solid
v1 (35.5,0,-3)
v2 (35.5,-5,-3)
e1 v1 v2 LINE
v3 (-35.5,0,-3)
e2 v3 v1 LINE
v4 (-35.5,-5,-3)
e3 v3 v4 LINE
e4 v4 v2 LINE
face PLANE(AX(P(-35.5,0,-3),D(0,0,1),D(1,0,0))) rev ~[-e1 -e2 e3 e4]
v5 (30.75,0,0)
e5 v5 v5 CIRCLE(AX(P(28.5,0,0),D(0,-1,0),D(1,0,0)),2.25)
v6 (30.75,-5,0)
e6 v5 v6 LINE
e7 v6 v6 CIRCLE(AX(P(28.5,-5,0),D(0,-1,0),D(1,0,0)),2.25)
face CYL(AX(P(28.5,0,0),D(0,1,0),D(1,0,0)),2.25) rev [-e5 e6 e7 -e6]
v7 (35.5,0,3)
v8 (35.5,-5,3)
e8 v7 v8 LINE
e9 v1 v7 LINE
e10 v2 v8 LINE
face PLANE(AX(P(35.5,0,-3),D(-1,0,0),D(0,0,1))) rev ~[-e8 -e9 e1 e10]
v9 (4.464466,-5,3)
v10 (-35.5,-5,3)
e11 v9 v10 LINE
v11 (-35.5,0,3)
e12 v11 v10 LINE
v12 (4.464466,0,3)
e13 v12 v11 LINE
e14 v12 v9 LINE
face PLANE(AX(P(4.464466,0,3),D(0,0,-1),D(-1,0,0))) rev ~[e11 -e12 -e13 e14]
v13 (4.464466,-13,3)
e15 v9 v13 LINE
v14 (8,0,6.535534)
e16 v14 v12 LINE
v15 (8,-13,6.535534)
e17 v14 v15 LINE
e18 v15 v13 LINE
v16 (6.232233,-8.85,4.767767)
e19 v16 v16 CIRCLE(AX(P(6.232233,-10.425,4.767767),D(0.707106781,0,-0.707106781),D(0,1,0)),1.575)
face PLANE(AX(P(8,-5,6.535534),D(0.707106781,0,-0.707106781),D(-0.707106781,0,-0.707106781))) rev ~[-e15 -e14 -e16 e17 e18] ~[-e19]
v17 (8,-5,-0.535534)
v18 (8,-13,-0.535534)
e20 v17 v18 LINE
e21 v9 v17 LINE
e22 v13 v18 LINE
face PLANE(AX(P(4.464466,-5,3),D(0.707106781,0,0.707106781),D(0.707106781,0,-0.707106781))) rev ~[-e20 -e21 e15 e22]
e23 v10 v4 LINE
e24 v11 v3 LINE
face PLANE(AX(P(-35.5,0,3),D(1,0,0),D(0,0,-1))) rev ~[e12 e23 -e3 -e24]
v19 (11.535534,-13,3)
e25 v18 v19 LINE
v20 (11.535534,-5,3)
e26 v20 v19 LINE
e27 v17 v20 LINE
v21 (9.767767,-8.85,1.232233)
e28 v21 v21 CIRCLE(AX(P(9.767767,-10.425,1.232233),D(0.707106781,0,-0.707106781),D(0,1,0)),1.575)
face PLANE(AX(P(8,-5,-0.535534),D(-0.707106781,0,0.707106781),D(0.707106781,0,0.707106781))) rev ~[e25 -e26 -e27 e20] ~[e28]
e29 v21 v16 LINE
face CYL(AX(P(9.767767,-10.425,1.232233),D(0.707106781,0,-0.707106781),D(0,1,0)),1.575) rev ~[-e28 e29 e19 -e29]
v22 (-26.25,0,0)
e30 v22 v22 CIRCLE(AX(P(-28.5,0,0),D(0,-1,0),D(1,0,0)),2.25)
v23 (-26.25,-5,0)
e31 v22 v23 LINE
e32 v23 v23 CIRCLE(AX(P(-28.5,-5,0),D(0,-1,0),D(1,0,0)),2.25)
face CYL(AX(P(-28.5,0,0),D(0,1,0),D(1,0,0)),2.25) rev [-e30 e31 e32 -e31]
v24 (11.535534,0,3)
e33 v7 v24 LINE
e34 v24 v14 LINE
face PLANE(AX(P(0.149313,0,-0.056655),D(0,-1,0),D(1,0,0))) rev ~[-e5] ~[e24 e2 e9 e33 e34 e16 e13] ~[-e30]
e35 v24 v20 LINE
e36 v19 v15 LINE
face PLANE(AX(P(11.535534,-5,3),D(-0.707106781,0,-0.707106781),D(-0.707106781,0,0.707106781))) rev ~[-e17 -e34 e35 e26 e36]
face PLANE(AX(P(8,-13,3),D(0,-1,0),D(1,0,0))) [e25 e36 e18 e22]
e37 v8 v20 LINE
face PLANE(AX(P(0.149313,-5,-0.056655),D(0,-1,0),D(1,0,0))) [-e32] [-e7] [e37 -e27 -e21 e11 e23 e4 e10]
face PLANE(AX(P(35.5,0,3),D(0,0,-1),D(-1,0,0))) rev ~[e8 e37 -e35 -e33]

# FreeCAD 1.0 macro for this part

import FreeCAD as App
import Part
import Sketcher
from FreeCAD import Vector

doc = App.newDocument("Part")
body = doc.addObject("PartDesign::Body", "Body")

# Sketch on XZ plane
sketch1 = body.newObject("Sketcher::SketchObject", "Sketch")
sketch1.AttachmentSupport = (doc.getObject("XZ_Plane"), [""])
sketch1.MapMode = "FlatFace"
sketch1.addGeometry([
    Part.LineSegment(Vector(35.5, -3, 0), Vector(35.5, 3, 0)),  # 0
    Part.LineSegment(Vector(35.5, 3, 0), Vector(11.535534, 3, 0)),  # 1
    Part.LineSegment(Vector(11.535534, 3, 0), Vector(8, 6.535534, 0)),  # 2
    Part.LineSegment(Vector(8, 6.535534, 0), Vector(4.464466, 3, 0)),  # 3
    Part.LineSegment(Vector(4.464466, 3, 0), Vector(-35.5, 3, 0)),  # 4
    Part.LineSegment(Vector(-35.5, 3, 0), Vector(-35.5, -3, 0)),  # 5
    Part.LineSegment(Vector(-35.5, -3, 0), Vector(35.5, -3, 0)),  # 6
    Part.Circle(Vector(-28.5, 0, 0), Vector(0, 0, 1), 2.25),  # 7
    Part.Circle(Vector(28.5, 0, 0), Vector(0, 0, 1), 2.25),  # 8
], False)
sketch1.addConstraint([
    Sketcher.Constraint("Coincident", 0, 2, 1, 1),
    Sketcher.Constraint("Coincident", 1, 2, 2, 1),
    Sketcher.Constraint("Coincident", 2, 2, 3, 1),
    Sketcher.Constraint("Coincident", 3, 2, 4, 1),
    Sketcher.Constraint("Coincident", 4, 2, 5, 1),
    Sketcher.Constraint("Coincident", 5, 2, 6, 1),
    Sketcher.Constraint("Coincident", 6, 2, 0, 1),
    Sketcher.Constraint("Vertical", 0),
    Sketcher.Constraint("Horizontal", 1),
    Sketcher.Constraint("Horizontal", 4),
    Sketcher.Constraint("Vertical", 5),
    Sketcher.Constraint("Horizontal", 6),
    Sketcher.Constraint("Equal", 7, 8),
    Sketcher.Constraint("Symmetric", 7, 3, 8, 3, -1, 1),
    Sketcher.Constraint("Symmetric", 0, 2, 5, 2, -1, 1),
    Sketcher.Constraint("PointOnObject", 7, 3, -1),
    Sketcher.Constraint("Perpendicular", 2, 3),
    Sketcher.Constraint("Horizontal", 1, 2, 3, 2),
    Sketcher.Constraint("Equal", 2, 3),
    Sketcher.Constraint("Diameter", 7, 4.5),
    Sketcher.Constraint("DistanceX", 6, 1, 6, 2, 71.0),
    Sketcher.Constraint("DistanceY", 0, 1, 0, 2, 6.0),
    Sketcher.Constraint("Distance", 2, 5.0),
    Sketcher.Constraint("DistanceX", -1, 1, 2, 2, 8.0),
    Sketcher.Constraint("DistanceX", 7, 3, 8, 3, 57.0),
])
pad1 = body.newObject("PartDesign::Pad", "Pad")
pad1.Profile = sketch1
pad1.Length = 5

# Sketch on XZ plane
sketch2 = body.newObject("Sketcher::SketchObject", "Sketch001")
sketch2.AttachmentSupport = (doc.getObject("XZ_Plane"), [""])
sketch2.MapMode = "FlatFace"
sketch2.AttachmentOffset = App.Placement(Vector(0, 0, 5), App.Rotation())
sketch2.addGeometry([
    Part.LineSegment(Vector(11.535534, 3, 0), Vector(8, 6.535534, 0)),
    Part.LineSegment(Vector(8, 6.535534, 0), Vector(4.464466, 3, 0)),
    Part.LineSegment(Vector(4.464466, 3, 0), Vector(8, -0.535534, 0)),
    Part.LineSegment(Vector(8, -0.535534, 0), Vector(11.535534, 3, 0)),
], False)
sketch2.addConstraint([
    Sketcher.Constraint("Coincident", 0, 2, 1, 1),
    Sketcher.Constraint("Coincident", 1, 2, 2, 1),
    Sketcher.Constraint("Coincident", 2, 2, 3, 1),
    Sketcher.Constraint("Coincident", 3, 2, 0, 1),
    Sketcher.Constraint("Perpendicular", 0, 1),
    Sketcher.Constraint("Perpendicular", 1, 2),
    Sketcher.Constraint("Perpendicular", 2, 3),
    Sketcher.Constraint("Horizontal", 1, 2, 3, 2),
    Sketcher.Constraint("Vertical", 0, 2, 2, 2),
    Sketcher.Constraint("Distance", 0, 5.0),
    Sketcher.Constraint("DistanceX", -1, 1, 0, 2, 8.0),
    Sketcher.Constraint("DistanceY", -1, 1, 1, 2, 3.0),
])
pad2 = body.newObject("PartDesign::Pad", "Pad001")
pad2.Profile = sketch2
pad2.Length = 8

# Sketch on an angled plane
sketch3 = body.newObject("Sketcher::SketchObject", "Sketch002")
sketch3.Placement = App.Placement(Vector(4.267767, 0, -4.267767), App.Rotation(Vector(0, 1, 0), Vector(0.707106781, 0, 0.707106781), Vector(0.707106781, 0, -0.707106781), "ZXY"))
sketch3.addGeometry(Part.Circle(Vector(-10.425, 7.778175, 0), Vector(0, 0, 1), 1.575), False)
sketch3.addConstraint([
    Sketcher.Constraint("Diameter", 0, 3.15),
    Sketcher.Constraint("DistanceX", 0, 3, -1, 1, 10.425),
    Sketcher.Constraint("DistanceY", -1, 1, 0, 3, 7.778175),
])
pocket1 = body.newObject("PartDesign::Pocket", "Pocket")
pocket1.Profile = sketch3
pocket1.Type = "ThroughAll"

doc.recompute()
